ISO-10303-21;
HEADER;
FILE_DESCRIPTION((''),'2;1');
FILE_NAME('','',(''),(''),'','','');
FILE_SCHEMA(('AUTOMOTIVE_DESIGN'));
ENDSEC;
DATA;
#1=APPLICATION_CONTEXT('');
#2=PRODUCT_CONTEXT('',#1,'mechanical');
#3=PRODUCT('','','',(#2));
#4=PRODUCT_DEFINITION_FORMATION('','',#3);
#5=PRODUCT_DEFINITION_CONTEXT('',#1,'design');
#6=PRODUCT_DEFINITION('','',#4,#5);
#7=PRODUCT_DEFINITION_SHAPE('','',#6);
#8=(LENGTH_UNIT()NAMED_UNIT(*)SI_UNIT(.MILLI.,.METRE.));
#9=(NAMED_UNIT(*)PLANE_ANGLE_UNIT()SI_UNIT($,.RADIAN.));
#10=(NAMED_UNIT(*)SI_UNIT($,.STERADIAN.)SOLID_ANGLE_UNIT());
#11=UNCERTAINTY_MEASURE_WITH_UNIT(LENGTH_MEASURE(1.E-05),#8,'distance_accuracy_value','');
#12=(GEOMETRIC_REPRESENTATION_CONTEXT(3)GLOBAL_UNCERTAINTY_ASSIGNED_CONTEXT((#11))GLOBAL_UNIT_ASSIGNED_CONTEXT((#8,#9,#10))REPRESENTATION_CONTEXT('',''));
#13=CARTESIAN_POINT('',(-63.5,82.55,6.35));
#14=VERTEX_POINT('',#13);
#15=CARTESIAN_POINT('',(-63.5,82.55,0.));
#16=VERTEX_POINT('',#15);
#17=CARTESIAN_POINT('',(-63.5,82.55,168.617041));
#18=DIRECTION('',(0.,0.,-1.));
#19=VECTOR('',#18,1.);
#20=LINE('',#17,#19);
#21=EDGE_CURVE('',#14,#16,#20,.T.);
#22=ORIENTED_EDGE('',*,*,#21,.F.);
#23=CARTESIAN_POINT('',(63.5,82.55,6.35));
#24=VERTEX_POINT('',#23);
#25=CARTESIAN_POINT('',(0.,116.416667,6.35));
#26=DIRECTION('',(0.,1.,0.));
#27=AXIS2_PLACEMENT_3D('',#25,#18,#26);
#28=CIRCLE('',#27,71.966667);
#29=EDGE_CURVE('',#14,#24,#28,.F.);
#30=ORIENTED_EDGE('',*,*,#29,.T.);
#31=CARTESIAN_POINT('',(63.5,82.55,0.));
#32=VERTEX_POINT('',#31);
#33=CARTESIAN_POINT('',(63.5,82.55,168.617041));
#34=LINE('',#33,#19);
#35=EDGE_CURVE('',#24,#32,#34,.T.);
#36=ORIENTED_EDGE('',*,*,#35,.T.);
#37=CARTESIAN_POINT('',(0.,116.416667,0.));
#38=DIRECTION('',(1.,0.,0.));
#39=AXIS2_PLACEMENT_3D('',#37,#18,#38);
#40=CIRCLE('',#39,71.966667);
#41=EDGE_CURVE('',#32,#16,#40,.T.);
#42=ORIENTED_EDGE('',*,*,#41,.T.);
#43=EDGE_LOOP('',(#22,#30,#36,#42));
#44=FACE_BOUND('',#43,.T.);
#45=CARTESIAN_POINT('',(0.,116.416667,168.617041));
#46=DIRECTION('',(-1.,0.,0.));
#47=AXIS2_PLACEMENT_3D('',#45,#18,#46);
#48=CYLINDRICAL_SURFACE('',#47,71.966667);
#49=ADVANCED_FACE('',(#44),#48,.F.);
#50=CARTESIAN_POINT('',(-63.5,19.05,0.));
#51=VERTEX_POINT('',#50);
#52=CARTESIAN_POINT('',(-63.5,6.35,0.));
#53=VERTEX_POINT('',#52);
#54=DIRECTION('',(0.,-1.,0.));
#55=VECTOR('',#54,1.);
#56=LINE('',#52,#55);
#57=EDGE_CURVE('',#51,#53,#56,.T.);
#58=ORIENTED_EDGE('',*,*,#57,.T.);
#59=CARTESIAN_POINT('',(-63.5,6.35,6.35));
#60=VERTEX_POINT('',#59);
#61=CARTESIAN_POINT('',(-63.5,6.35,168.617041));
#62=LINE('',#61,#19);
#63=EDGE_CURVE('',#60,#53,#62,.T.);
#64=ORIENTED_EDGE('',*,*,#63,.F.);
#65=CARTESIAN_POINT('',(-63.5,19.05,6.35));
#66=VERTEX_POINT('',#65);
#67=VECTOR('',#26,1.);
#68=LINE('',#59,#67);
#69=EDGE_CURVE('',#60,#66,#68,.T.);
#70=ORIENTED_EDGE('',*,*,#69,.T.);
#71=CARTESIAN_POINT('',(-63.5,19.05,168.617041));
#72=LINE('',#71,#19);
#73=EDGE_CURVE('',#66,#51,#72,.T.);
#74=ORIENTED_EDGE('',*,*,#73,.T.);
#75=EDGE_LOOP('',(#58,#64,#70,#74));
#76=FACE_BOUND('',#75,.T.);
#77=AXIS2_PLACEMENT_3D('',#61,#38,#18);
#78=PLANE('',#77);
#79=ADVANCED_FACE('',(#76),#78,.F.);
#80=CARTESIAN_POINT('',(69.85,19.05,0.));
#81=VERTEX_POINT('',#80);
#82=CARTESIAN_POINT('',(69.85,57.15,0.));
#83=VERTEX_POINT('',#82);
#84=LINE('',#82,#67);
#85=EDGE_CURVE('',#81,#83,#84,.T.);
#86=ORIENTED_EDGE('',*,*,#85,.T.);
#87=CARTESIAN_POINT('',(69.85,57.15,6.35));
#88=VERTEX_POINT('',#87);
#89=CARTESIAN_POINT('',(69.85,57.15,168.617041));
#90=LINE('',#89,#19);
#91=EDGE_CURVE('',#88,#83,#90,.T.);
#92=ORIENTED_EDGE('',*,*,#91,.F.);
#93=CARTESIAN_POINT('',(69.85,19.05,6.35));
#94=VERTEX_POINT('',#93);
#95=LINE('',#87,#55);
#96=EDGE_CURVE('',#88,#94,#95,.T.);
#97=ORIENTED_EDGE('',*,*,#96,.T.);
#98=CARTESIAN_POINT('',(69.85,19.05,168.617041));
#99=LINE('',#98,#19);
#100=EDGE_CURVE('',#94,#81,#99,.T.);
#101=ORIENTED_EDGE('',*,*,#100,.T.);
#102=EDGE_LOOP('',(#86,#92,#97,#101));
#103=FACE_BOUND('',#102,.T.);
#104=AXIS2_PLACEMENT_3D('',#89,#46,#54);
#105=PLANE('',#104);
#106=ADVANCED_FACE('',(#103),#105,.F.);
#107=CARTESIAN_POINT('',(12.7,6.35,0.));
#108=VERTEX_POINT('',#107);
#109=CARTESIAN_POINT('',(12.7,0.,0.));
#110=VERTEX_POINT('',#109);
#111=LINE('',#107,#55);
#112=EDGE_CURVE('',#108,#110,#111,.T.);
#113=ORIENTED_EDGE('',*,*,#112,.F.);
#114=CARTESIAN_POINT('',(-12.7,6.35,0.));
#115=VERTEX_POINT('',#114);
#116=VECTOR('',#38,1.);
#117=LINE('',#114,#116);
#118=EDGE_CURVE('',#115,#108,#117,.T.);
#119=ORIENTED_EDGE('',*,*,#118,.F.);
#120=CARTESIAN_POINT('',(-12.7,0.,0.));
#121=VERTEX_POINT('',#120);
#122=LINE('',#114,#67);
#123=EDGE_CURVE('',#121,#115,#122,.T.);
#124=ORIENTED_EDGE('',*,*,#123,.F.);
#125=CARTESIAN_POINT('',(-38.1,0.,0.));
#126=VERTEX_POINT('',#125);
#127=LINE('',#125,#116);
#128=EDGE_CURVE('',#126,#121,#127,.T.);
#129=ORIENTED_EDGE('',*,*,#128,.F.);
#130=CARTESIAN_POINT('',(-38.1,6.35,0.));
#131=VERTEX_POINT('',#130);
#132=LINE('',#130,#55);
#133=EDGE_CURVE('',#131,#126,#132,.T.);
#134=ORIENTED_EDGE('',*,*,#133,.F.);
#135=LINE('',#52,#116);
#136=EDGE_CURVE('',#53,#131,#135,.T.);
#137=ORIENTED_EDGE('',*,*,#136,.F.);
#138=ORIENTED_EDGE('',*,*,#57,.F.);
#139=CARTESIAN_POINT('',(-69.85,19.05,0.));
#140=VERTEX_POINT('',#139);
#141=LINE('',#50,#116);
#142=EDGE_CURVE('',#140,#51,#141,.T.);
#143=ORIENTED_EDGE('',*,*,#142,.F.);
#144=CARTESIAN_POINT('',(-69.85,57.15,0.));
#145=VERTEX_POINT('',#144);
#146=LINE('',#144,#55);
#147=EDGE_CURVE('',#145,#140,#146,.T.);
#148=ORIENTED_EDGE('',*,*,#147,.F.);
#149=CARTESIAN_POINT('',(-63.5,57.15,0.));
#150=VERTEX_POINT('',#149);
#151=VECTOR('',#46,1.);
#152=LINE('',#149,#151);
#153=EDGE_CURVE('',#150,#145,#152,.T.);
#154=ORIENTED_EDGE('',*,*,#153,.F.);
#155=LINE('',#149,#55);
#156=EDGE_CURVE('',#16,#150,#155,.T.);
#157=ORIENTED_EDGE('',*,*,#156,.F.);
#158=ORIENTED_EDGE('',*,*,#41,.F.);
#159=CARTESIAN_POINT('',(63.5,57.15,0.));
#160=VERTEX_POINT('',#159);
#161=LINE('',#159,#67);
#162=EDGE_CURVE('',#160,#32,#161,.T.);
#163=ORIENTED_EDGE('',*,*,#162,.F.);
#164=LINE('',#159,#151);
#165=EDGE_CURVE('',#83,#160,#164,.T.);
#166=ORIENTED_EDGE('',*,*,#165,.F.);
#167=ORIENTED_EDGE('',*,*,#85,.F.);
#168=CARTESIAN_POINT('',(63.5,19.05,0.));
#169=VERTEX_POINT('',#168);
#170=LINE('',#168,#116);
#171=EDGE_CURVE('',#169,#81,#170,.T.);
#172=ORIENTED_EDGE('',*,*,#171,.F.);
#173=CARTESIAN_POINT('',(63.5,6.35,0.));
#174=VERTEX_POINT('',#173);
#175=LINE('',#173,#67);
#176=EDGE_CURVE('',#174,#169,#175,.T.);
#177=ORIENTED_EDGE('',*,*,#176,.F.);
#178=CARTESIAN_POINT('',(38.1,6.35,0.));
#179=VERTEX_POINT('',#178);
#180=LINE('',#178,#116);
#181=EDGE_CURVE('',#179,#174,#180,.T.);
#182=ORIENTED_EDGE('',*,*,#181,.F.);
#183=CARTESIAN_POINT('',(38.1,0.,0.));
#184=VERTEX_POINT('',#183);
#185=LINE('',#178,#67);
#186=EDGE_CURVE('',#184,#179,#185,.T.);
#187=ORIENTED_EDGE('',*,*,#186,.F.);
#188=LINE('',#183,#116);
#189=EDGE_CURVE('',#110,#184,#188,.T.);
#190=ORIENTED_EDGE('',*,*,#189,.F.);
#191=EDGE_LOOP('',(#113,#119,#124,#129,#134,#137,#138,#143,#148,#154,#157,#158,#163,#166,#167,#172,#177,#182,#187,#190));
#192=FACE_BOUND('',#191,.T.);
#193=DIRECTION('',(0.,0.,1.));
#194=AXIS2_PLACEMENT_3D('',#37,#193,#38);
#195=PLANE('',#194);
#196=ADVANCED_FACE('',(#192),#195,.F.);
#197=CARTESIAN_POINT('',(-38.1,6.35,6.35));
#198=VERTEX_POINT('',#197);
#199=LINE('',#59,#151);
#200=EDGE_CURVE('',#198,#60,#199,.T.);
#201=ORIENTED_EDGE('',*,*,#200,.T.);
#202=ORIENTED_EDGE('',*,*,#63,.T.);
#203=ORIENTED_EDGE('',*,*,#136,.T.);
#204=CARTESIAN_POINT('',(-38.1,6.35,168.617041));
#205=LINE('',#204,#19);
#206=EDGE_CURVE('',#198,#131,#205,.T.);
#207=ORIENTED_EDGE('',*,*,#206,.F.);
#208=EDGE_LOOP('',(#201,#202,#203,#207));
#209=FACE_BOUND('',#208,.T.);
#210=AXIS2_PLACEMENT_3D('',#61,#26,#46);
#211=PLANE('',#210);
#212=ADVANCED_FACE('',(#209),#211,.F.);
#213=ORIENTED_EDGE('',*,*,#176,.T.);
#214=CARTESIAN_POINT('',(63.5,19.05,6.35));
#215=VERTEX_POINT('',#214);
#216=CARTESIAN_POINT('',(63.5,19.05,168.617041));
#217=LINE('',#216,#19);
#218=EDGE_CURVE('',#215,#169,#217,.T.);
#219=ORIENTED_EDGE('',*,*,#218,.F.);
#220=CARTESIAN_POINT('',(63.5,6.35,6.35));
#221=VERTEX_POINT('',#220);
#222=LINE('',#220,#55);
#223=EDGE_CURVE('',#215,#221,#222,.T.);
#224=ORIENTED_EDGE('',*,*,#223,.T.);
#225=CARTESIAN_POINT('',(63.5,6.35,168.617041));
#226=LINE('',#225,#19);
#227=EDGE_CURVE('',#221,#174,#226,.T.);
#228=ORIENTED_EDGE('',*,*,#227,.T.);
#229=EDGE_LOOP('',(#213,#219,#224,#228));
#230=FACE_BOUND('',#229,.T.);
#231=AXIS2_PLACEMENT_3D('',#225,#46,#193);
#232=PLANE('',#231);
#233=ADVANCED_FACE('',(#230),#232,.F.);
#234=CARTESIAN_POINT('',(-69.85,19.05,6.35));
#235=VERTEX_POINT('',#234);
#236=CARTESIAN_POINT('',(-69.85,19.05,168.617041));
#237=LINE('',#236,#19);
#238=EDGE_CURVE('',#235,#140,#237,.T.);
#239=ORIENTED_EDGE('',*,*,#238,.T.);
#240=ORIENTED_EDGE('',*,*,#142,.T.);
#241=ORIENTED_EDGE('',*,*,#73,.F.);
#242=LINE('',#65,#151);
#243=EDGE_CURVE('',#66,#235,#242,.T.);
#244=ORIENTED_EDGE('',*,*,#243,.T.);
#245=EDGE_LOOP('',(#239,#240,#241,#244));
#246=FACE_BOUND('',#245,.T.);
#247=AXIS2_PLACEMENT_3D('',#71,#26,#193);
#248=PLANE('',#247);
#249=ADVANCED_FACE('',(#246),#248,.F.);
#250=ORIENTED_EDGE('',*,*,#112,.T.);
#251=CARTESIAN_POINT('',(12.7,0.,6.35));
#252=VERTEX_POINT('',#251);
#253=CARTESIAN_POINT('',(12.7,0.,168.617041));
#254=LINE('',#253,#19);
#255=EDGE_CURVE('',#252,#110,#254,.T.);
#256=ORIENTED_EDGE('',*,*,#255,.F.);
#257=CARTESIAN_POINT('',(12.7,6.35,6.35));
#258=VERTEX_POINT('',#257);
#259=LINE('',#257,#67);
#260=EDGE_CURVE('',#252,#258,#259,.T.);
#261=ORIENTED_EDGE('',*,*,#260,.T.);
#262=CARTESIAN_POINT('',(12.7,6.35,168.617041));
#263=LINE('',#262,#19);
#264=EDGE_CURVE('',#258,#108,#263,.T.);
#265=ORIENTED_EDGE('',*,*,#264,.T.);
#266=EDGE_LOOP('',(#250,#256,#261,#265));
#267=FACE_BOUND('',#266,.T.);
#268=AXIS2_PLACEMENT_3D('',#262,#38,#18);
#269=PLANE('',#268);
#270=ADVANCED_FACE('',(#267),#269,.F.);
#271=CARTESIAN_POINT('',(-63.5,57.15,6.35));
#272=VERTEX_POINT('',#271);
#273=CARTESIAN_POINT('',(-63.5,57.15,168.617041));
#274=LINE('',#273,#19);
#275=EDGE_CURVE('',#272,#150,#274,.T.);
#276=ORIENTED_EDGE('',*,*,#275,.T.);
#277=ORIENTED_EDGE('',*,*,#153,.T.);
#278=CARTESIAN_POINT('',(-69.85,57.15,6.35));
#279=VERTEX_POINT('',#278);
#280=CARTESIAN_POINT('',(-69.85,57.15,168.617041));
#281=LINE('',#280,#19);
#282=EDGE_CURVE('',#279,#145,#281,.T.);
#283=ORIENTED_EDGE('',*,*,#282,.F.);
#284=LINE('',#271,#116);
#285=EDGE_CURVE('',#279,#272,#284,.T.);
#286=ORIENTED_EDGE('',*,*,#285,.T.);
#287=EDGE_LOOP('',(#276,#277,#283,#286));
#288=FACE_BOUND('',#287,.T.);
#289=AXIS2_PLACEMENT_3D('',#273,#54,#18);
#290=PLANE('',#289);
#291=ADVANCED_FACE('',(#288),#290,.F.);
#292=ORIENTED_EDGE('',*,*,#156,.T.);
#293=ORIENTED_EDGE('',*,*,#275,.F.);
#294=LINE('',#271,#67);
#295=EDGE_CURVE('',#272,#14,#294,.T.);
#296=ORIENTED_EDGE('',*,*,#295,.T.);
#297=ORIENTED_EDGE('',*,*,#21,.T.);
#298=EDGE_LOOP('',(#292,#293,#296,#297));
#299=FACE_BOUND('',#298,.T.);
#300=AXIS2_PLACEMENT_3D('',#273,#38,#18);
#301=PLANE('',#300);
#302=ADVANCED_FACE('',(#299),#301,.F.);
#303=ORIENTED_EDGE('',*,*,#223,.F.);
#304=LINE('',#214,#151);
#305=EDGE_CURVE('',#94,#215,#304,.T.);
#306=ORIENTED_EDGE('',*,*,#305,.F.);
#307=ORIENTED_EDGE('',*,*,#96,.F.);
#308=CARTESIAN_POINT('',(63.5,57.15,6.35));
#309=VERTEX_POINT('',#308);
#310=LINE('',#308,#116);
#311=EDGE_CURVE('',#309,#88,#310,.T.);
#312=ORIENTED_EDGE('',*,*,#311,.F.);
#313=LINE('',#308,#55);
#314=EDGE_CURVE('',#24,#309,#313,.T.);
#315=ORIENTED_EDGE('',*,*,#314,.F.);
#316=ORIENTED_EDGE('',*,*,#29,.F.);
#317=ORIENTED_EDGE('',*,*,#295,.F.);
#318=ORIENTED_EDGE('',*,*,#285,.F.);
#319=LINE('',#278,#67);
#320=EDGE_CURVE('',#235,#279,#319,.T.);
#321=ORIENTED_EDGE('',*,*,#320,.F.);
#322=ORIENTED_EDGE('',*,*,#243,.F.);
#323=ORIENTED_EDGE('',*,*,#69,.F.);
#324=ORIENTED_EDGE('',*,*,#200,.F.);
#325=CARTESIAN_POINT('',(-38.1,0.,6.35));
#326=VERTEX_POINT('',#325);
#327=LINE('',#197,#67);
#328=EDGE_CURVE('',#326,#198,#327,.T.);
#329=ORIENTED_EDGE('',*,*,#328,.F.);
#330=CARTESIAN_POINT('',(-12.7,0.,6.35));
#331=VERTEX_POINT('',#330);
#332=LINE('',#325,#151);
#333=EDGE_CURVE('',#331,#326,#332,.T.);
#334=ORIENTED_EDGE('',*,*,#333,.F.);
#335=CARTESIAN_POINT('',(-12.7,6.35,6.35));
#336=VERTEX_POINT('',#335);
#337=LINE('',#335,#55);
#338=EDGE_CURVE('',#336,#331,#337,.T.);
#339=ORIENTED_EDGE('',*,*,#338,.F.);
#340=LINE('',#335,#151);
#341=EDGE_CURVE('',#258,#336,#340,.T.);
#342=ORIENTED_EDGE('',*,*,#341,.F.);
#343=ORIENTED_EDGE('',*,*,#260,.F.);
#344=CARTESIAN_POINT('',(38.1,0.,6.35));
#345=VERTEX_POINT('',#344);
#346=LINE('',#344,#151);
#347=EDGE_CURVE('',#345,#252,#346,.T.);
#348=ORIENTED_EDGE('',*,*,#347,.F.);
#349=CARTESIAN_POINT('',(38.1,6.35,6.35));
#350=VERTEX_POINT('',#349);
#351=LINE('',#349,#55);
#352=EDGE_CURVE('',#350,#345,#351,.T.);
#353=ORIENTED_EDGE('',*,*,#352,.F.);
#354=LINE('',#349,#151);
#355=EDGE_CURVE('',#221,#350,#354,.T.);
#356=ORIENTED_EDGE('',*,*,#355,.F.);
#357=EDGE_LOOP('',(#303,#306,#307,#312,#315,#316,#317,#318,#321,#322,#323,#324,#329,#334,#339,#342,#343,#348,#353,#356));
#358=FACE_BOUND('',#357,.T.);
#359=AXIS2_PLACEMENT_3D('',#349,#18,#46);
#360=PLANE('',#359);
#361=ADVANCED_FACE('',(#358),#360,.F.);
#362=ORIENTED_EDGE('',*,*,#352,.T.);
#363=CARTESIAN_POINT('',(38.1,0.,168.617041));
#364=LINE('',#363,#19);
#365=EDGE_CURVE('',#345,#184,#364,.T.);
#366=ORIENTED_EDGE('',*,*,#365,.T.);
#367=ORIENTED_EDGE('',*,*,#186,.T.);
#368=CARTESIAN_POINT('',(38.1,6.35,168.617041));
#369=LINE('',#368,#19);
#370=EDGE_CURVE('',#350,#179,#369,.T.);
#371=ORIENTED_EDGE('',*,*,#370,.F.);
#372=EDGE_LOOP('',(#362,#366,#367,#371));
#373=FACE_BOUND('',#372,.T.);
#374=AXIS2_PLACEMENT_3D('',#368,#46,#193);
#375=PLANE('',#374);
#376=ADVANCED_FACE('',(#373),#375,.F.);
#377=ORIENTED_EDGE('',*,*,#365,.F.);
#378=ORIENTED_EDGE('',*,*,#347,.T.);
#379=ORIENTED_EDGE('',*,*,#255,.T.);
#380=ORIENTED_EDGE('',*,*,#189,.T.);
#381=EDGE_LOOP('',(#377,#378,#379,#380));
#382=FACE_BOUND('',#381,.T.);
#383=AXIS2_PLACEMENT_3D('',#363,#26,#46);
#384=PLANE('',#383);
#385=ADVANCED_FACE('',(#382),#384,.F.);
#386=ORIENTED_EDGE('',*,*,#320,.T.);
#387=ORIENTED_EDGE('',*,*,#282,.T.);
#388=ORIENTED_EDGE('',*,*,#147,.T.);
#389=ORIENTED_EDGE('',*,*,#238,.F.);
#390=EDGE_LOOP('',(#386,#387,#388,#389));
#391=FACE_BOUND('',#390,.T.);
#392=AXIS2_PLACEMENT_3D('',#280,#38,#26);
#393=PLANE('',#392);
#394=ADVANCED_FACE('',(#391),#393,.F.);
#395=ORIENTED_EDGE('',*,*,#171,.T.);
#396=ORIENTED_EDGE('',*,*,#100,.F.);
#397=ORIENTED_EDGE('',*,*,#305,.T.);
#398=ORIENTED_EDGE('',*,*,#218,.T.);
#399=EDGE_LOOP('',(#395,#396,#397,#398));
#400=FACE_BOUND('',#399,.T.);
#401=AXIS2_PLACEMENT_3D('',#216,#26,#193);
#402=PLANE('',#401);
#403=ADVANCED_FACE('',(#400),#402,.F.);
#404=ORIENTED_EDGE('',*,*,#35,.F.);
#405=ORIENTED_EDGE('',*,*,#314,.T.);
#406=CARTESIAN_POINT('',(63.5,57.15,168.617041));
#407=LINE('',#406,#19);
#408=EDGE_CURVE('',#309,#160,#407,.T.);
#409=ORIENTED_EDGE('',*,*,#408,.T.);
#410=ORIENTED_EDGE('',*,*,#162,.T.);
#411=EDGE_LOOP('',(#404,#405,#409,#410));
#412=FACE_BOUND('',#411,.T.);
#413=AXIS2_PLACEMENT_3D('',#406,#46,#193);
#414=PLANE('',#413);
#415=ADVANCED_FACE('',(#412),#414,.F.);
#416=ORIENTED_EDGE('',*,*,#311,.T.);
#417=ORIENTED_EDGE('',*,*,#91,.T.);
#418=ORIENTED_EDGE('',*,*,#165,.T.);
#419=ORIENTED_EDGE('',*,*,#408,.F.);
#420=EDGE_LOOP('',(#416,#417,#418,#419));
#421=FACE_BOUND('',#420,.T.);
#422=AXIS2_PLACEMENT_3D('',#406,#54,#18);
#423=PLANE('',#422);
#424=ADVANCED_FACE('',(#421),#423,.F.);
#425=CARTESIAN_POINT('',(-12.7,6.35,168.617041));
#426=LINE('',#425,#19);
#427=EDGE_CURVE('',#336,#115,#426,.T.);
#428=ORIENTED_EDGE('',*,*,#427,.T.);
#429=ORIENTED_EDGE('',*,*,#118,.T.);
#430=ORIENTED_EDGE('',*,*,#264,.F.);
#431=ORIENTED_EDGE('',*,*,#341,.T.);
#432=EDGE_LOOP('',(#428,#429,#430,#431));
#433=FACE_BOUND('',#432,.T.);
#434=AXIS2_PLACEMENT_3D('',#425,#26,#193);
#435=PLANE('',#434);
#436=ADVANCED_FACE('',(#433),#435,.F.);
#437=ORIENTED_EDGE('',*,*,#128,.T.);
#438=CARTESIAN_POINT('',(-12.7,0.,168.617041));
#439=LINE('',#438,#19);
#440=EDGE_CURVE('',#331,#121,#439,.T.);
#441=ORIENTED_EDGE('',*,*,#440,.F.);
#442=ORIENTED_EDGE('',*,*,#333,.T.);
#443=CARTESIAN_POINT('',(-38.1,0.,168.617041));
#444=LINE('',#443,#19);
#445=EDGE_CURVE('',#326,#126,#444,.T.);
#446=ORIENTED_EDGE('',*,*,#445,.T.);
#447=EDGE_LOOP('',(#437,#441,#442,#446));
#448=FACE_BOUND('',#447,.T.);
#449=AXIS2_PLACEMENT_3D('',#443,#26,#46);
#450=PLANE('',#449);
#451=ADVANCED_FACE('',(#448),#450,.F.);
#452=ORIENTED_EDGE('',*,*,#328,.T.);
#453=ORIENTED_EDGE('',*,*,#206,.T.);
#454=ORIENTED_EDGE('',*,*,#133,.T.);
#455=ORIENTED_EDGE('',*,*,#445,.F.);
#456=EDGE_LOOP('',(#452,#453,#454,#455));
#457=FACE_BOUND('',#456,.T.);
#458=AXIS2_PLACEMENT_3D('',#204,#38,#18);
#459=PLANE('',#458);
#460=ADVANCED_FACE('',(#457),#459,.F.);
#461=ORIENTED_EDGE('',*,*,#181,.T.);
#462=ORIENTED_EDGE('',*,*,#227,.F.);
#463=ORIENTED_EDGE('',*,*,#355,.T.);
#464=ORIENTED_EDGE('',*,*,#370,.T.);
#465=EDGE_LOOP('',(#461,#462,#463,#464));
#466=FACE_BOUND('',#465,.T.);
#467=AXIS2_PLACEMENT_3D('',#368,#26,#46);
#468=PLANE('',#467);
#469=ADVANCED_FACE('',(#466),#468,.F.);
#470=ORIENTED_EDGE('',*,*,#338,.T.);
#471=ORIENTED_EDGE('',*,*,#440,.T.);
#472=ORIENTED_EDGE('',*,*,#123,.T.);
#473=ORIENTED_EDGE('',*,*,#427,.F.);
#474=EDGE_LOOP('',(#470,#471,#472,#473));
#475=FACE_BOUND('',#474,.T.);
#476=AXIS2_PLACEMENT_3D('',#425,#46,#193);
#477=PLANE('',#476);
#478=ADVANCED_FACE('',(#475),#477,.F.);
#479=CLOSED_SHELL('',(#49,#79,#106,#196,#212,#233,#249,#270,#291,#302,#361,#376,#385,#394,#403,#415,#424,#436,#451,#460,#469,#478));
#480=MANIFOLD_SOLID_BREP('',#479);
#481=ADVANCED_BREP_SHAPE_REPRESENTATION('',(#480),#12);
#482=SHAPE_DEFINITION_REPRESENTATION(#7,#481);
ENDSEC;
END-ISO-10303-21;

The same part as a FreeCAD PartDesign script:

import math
import FreeCAD as App
import Part
import Sketcher

V = App.Vector
Q = App.Units.Quantity

doc = App.newDocument("Part")
body = doc.addObject("PartDesign::Body", "Body")

sketch1 = body.newObject("Sketcher::SketchObject", "Sketch")
sketch1.AttachmentSupport = (doc.getObject("XY_Plane"), [""])
sketch1.MapMode = "FlatFace"
sketch1.addGeometry([
    Part.LineSegment(V(64, 6, 0), V(64, 19, 0)),
    Part.LineSegment(V(64, 19, 0), V(70, 19, 0)),
    Part.LineSegment(V(70, 19, 0), V(70, 57, 0)),
    Part.LineSegment(V(70, 57, 0), V(64, 57, 0)),
    Part.LineSegment(V(64, 57, 0), V(64, 83, 0)),
    Part.ArcOfCircle(Part.Circle(V(0, 116, 0), V(0, 0, 1), 72), math.radians(-152), math.radians(-28)),
    Part.LineSegment(V(-64, 83, 0), V(-64, 57, 0)),
    Part.LineSegment(V(-64, 57, 0), V(-70, 57, 0)),
    Part.LineSegment(V(-70, 57, 0), V(-70, 19, 0)),
    Part.LineSegment(V(-70, 19, 0), V(-64, 19, 0)),
    Part.LineSegment(V(-64, 19, 0), V(-64, 6, 0)),
    Part.LineSegment(V(-64, 6, 0), V(-38, 6, 0)),
    Part.LineSegment(V(-38, 6, 0), V(-38, 0, 0)),
    Part.LineSegment(V(-38, 0, 0), V(-13, 0, 0)),
    Part.LineSegment(V(-13, 0, 0), V(-13, 6, 0)),
    Part.LineSegment(V(-13, 6, 0), V(13, 6, 0)),
    Part.LineSegment(V(13, 6, 0), V(13, 0, 0)),
    Part.LineSegment(V(13, 0, 0), V(38, 0, 0)),
    Part.LineSegment(V(38, 0, 0), V(38, 6, 0)),
    Part.LineSegment(V(38, 6, 0), V(64, 6, 0)),
], False)
sketch1.addConstraint([
    Sketcher.Constraint("Coincident", 0, 2, 1, 1),
    Sketcher.Constraint("Coincident", 1, 2, 2, 1),
    Sketcher.Constraint("Coincident", 2, 2, 3, 1),
    Sketcher.Constraint("Coincident", 3, 2, 4, 1),
    Sketcher.Constraint("Coincident", 4, 2, 5, 2),
    Sketcher.Constraint("Coincident", 5, 1, 6, 1),
    Sketcher.Constraint("Coincident", 6, 2, 7, 1),
    Sketcher.Constraint("Coincident", 7, 2, 8, 1),
    Sketcher.Constraint("Coincident", 8, 2, 9, 1),
    Sketcher.Constraint("Coincident", 9, 2, 10, 1),
    Sketcher.Constraint("Coincident", 10, 2, 11, 1),
    Sketcher.Constraint("Coincident", 11, 2, 12, 1),
    Sketcher.Constraint("Coincident", 12, 2, 13, 1),
    Sketcher.Constraint("Coincident", 13, 2, 14, 1),
    Sketcher.Constraint("Coincident", 14, 2, 15, 1),
    Sketcher.Constraint("Coincident", 15, 2, 16, 1),
    Sketcher.Constraint("Coincident", 16, 2, 17, 1),
    Sketcher.Constraint("Coincident", 17, 2, 18, 1),
    Sketcher.Constraint("Coincident", 18, 2, 19, 1),
    Sketcher.Constraint("Coincident", 19, 2, 0, 1),
    Sketcher.Constraint("Vertical", 0),
    Sketcher.Constraint("Horizontal", 1),
    Sketcher.Constraint("Vertical", 2),
    Sketcher.Constraint("Horizontal", 3),
    Sketcher.Constraint("Vertical", 4),
    Sketcher.Constraint("Vertical", 6),
    Sketcher.Constraint("Horizontal", 7),
    Sketcher.Constraint("Vertical", 8),
    Sketcher.Constraint("Horizontal", 9),
    Sketcher.Constraint("Vertical", 10),
    Sketcher.Constraint("Horizontal", 11),
    Sketcher.Constraint("Vertical", 12),
    Sketcher.Constraint("Horizontal", 13),
    Sketcher.Constraint("Vertical", 14),
    Sketcher.Constraint("Horizontal", 15),
    Sketcher.Constraint("Vertical", 16),
    Sketcher.Constraint("Horizontal", 17),
    Sketcher.Constraint("Vertical", 18),
    Sketcher.Constraint("Horizontal", 19),
    Sketcher.Constraint("Symmetric", 13, 2, 16, 2, -1, 1),
    Sketcher.Constraint("Symmetric", 4, 2, 5, 1, -2),
    Sketcher.Constraint("Symmetric", 2, 2, 7, 2, -2),
    Sketcher.Constraint("Symmetric", 0, 2, 9, 2, -2),
    Sketcher.Constraint("Symmetric", 12, 2, 17, 2, -2),
    Sketcher.Constraint("Horizontal", 11, 2, 14, 2),
    Sketcher.Constraint("Horizontal", 15, 2, 18, 2),
    Sketcher.Constraint("Vertical", 0, 2, 3, 2),
    Sketcher.Constraint("Equal", 11, 13),
    Sketcher.Constraint("Equal", 13, 15),
    Sketcher.Constraint("Equal", 19, 4),
    Sketcher.Constraint("Equal", 9, 12),
    Sketcher.Constraint("DistanceX", 11, 1, 11, 2, Q("1 in")),
    Sketcher.Constraint("DistanceY", 0, 1, 0, 2, Q("0.5 in")),
    Sketcher.Constraint("DistanceY", 2, 1, 2, 2, Q("1.5 in")),
    Sketcher.Constraint("DistanceX", 1, 1, 1, 2, Q("0.25 in")),
    Sketcher.Constraint("Radius", 5, 71.966667),
])
pad1 = body.newObject("PartDesign::Pad", "Pad")
pad1.Profile = sketch1
pad1.Length = Q("0.25 in")

doc.recompute()
